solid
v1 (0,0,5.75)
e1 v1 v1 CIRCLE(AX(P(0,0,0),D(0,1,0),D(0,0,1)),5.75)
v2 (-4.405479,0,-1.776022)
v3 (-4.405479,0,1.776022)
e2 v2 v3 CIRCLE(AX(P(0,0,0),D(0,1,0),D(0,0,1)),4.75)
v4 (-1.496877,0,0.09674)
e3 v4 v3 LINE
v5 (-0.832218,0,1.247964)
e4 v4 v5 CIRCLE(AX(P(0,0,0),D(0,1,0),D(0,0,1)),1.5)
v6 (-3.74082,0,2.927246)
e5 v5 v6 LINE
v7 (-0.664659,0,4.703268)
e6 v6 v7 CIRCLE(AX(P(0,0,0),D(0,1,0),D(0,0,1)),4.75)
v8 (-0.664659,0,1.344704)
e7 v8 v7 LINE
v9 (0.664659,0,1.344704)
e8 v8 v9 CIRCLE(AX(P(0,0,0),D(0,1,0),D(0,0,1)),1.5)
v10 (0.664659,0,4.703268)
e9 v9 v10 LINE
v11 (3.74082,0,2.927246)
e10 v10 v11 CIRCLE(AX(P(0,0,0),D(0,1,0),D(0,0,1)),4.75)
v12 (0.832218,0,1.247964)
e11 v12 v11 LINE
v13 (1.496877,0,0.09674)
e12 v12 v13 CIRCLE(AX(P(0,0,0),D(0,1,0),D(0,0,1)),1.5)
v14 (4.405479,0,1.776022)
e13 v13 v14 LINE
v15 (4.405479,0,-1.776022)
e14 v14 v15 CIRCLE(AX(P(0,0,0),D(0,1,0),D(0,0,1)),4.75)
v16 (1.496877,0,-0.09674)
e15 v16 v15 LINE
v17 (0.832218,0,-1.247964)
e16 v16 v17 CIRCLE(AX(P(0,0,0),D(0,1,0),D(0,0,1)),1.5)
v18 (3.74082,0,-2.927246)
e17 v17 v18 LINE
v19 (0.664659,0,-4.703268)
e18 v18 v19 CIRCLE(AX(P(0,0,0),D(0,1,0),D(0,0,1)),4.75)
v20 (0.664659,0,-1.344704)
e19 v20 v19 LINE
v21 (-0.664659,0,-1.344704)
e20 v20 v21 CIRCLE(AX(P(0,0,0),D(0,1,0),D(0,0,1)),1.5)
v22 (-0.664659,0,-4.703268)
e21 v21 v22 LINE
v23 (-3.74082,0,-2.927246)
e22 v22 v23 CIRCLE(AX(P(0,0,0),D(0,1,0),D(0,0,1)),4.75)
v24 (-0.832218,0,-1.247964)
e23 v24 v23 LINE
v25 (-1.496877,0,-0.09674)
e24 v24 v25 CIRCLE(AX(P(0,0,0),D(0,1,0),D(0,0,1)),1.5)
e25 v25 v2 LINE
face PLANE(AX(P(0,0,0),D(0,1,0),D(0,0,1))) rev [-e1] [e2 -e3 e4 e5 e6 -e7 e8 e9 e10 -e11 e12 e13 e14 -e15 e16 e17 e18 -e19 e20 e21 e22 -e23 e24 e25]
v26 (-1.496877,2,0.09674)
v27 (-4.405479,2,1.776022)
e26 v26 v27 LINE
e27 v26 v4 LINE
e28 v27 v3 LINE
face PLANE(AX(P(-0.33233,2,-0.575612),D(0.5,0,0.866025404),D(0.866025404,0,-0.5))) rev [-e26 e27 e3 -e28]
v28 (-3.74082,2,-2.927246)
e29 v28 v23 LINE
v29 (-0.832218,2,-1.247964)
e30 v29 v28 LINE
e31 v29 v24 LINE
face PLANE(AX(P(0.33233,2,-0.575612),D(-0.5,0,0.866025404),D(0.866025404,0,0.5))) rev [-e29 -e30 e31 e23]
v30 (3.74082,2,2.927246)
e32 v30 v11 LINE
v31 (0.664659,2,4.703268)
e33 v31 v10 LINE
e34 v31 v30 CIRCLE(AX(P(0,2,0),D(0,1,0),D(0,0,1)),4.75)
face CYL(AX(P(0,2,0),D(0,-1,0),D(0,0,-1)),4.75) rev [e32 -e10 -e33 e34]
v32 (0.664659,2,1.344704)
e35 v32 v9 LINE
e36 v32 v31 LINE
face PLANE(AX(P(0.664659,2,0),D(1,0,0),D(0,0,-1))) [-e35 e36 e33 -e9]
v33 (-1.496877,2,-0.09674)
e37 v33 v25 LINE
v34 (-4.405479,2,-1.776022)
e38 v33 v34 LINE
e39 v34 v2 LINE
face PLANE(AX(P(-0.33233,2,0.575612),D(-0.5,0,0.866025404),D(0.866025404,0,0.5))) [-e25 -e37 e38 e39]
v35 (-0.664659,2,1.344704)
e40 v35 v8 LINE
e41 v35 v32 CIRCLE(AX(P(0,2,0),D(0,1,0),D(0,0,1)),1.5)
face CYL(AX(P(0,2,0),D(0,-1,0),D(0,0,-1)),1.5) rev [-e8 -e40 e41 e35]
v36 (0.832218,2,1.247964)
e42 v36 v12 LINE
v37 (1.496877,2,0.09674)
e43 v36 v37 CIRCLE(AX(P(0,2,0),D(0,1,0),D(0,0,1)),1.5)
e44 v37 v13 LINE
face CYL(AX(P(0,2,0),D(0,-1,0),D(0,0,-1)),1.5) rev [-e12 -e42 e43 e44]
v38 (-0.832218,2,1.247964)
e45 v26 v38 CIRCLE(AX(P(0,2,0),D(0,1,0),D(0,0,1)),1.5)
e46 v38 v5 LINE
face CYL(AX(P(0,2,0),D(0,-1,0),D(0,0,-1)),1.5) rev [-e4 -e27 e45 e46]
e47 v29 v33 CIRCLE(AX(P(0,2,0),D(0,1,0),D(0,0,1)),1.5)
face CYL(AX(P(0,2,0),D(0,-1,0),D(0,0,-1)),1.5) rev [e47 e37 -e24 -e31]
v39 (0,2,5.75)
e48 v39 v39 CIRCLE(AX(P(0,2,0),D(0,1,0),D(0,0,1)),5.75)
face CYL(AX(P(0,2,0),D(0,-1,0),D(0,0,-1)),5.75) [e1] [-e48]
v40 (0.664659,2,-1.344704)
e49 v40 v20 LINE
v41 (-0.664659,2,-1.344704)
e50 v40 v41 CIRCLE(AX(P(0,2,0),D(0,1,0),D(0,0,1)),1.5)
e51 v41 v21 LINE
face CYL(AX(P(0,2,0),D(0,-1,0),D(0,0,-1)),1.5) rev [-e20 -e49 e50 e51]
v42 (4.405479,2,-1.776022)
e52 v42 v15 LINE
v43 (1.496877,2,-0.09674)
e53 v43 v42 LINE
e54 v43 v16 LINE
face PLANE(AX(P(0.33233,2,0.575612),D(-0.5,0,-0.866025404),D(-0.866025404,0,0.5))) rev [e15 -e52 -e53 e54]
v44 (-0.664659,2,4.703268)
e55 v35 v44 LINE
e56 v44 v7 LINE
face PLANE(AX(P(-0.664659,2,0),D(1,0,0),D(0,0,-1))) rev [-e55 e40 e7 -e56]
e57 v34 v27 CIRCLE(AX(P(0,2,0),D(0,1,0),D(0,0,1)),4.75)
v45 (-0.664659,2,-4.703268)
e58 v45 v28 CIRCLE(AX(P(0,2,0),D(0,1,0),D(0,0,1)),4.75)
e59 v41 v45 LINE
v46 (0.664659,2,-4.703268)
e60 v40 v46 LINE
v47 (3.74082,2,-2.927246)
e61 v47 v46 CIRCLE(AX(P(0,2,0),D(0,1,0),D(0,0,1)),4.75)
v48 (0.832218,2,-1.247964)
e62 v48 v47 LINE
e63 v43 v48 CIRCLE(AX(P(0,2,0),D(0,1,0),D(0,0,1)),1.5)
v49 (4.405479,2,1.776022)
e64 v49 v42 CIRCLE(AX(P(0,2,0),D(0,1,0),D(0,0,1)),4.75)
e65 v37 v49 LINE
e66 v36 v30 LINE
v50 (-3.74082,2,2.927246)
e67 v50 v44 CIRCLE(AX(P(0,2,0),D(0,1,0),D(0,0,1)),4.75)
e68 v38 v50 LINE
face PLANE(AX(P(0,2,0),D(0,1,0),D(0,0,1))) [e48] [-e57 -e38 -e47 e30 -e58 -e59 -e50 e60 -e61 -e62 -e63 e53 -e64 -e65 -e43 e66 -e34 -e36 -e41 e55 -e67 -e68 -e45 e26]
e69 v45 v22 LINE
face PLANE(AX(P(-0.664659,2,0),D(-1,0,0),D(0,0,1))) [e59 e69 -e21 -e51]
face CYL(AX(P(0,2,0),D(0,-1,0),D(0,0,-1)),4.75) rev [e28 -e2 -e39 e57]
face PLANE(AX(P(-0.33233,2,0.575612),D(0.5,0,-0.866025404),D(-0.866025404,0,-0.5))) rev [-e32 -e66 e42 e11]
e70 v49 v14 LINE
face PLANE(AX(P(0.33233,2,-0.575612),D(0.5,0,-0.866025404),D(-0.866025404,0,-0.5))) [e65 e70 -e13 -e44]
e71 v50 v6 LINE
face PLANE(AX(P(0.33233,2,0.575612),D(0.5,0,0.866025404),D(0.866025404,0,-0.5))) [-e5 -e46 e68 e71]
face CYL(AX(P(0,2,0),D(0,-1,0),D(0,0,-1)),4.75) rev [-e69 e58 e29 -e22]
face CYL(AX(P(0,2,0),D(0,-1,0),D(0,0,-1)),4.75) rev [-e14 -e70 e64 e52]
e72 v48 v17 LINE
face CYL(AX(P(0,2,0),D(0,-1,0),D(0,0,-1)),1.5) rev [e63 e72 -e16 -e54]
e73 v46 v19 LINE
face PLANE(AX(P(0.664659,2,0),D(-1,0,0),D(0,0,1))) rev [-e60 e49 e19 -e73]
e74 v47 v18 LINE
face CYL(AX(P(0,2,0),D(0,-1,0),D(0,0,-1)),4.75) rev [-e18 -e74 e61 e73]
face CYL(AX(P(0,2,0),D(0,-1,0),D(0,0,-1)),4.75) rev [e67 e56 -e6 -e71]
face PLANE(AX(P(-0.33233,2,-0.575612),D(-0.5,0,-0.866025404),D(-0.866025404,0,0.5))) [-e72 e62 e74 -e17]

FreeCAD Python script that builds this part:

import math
import FreeCAD as App
import Part
import Sketcher
from FreeCAD import Vector
Q = App.Units.Quantity

doc = App.newDocument("Part")
body = doc.addObject("PartDesign::Body", "Body")

# Sketch on XZ plane
sketch1 = doc.addObject("Sketcher::SketchObject", "Sketch")
body.addObject(sketch1)
sketch1.AttachmentSupport = (doc.XZ_Plane, [""])
sketch1.MapMode = "FlatFace"
sketch1.addGeometry(Part.Circle(Vector(0, 0, 0), Vector(0, 0, 1), 5.75), False)
sketch1.addGeometry(Part.LineSegment(Vector(4.405479, 1.776022, 0), Vector(1.496877, 0.09674, 0)), False)
sketch1.addGeometry(Part.ArcOfCircle(Part.Circle(Vector(0, 0, 0), Vector(0, 0, 1), 1.5), math.radians(3.69777), math.radians(56.30223)), False)
sketch1.addGeometry(Part.LineSegment(Vector(0.832218, 1.247964, 0), Vector(3.74082, 2.927246, 0)), False)
sketch1.addGeometry(Part.ArcOfCircle(Part.Circle(Vector(0, 0, 0), Vector(0, 0, 1), 4.75), math.radians(38.043694), math.radians(81.956306)), False)
sketch1.addGeometry(Part.LineSegment(Vector(0.664659, 4.703268, 0), Vector(0.664659, 1.344704, 0)), False)
sketch1.addGeometry(Part.ArcOfCircle(Part.Circle(Vector(0, 0, 0), Vector(0, 0, 1), 1.5), math.radians(63.69777), math.radians(116.30223)), False)
sketch1.addGeometry(Part.LineSegment(Vector(-0.664659, 1.344704, 0), Vector(-0.664659, 4.703268, 0)), False)
sketch1.addGeometry(Part.ArcOfCircle(Part.Circle(Vector(0, 0, 0), Vector(0, 0, 1), 4.75), math.radians(98.043694), math.radians(141.956306)), False)
sketch1.addGeometry(Part.LineSegment(Vector(-3.74082, 2.927246, 0), Vector(-0.832218, 1.247964, 0)), False)
sketch1.addGeometry(Part.ArcOfCircle(Part.Circle(Vector(0, 0, 0), Vector(0, 0, 1), 1.5), math.radians(123.69777), math.radians(176.30223)), False)
sketch1.addGeometry(Part.LineSegment(Vector(-1.496877, 0.09674, 0), Vector(-4.405479, 1.776022, 0)), False)
sketch1.addGeometry(Part.ArcOfCircle(Part.Circle(Vector(0, 0, 0), Vector(0, 0, 1), 4.75), math.radians(158.043694), math.radians(201.956306)), False)
sketch1.addGeometry(Part.LineSegment(Vector(-4.405479, -1.776022, 0), Vector(-1.496877, -0.09674, 0)), False)
sketch1.addGeometry(Part.ArcOfCircle(Part.Circle(Vector(0, 0, 0), Vector(0, 0, 1), 1.5), math.radians(-176.30223), math.radians(-123.69777)), False)
sketch1.addGeometry(Part.LineSegment(Vector(-0.832218, -1.247964, 0), Vector(-3.74082, -2.927246, 0)), False)
sketch1.addGeometry(Part.ArcOfCircle(Part.Circle(Vector(0, 0, 0), Vector(0, 0, 1), 4.75), math.radians(-141.956306), math.radians(-98.043694)), False)
sketch1.addGeometry(Part.LineSegment(Vector(-0.664659, -4.703268, 0), Vector(-0.664659, -1.344704, 0)), False)
sketch1.addGeometry(Part.ArcOfCircle(Part.Circle(Vector(0, 0, 0), Vector(0, 0, 1), 1.5), math.radians(-116.30223), math.radians(-63.69777)), False)
sketch1.addGeometry(Part.LineSegment(Vector(0.664659, -1.344704, 0), Vector(0.664659, -4.703268, 0)), False)
sketch1.addGeometry(Part.ArcOfCircle(Part.Circle(Vector(0, 0, 0), Vector(0, 0, 1), 4.75), math.radians(-81.956306), math.radians(-38.043694)), False)
sketch1.addGeometry(Part.LineSegment(Vector(3.74082, -2.927246, 0), Vector(0.832218, -1.247964, 0)), False)
sketch1.addGeometry(Part.ArcOfCircle(Part.Circle(Vector(0, 0, 0), Vector(0, 0, 1), 1.5), math.radians(-56.30223), math.radians(-3.69777)), False)
sketch1.addGeometry(Part.LineSegment(Vector(1.496877, -0.09674, 0), Vector(4.405479, -1.776022, 0)), False)
sketch1.addGeometry(Part.ArcOfCircle(Part.Circle(Vector(0, 0, 0), Vector(0, 0, 1), 4.75), math.radians(-21.956306), math.radians(21.956306)), False)
sketch1.addConstraint(Sketcher.Constraint("Coincident", 1, 2, 2, 1))
sketch1.addConstraint(Sketcher.Constraint("Coincident", 2, 2, 3, 1))
sketch1.addConstraint(Sketcher.Constraint("Coincident", 3, 2, 4, 1))
sketch1.addConstraint(Sketcher.Constraint("Coincident", 4, 2, 5, 1))
sketch1.addConstraint(Sketcher.Constraint("Coincident", 5, 2, 6, 1))
sketch1.addConstraint(Sketcher.Constraint("Coincident", 6, 2, 7, 1))
sketch1.addConstraint(Sketcher.Constraint("Coincident", 7, 2, 8, 1))
sketch1.addConstraint(Sketcher.Constraint("Coincident", 8, 2, 9, 1))
sketch1.addConstraint(Sketcher.Constraint("Coincident", 9, 2, 10, 1))
sketch1.addConstraint(Sketcher.Constraint("Coincident", 10, 2, 11, 1))
sketch1.addConstraint(Sketcher.Constraint("Coincident", 11, 2, 12, 1))
sketch1.addConstraint(Sketcher.Constraint("Coincident", 12, 2, 13, 1))
sketch1.addConstraint(Sketcher.Constraint("Coincident", 13, 2, 14, 1))
sketch1.addConstraint(Sketcher.Constraint("Coincident", 14, 2, 15, 1))
sketch1.addConstraint(Sketcher.Constraint("Coincident", 15, 2, 16, 1))
sketch1.addConstraint(Sketcher.Constraint("Coincident", 16, 2, 17, 1))
sketch1.addConstraint(Sketcher.Constraint("Coincident", 17, 2, 18, 1))
sketch1.addConstraint(Sketcher.Constraint("Coincident", 18, 2, 19, 1))
sketch1.addConstraint(Sketcher.Constraint("Coincident", 19, 2, 20, 1))
sketch1.addConstraint(Sketcher.Constraint("Coincident", 20, 2, 21, 1))
sketch1.addConstraint(Sketcher.Constraint("Coincident", 21, 2, 22, 1))
sketch1.addConstraint(Sketcher.Constraint("Coincident", 22, 2, 23, 1))
sketch1.addConstraint(Sketcher.Constraint("Coincident", 23, 2, 24, 1))
sketch1.addConstraint(Sketcher.Constraint("Coincident", 24, 2, 1, 1))
sketch1.addConstraint(Sketcher.Constraint("Vertical", 5))
sketch1.addConstraint(Sketcher.Constraint("Vertical", 7))
sketch1.addConstraint(Sketcher.Constraint("Vertical", 17))
sketch1.addConstraint(Sketcher.Constraint("Vertical", 19))
sketch1.addConstraint(Sketcher.Constraint("Coincident", 0, 3, -1, 1))
sketch1.addConstraint(Sketcher.Constraint("Coincident", 2, 3, -1, 1))
sketch1.addConstraint(Sketcher.Constraint("Coincident", 4, 3, -1, 1))
sketch1.addConstraint(Sketcher.Constraint("Coincident", 6, 3, -1, 1))
sketch1.addConstraint(Sketcher.Constraint("Coincident", 8, 3, -1, 1))
sketch1.addConstraint(Sketcher.Constraint("Coincident", 10, 3, -1, 1))
sketch1.addConstraint(Sketcher.Constraint("Coincident", 12, 3, -1, 1))
sketch1.addConstraint(Sketcher.Constraint("Coincident", 14, 3, -1, 1))
sketch1.addConstraint(Sketcher.Constraint("Coincident", 16, 3, -1, 1))
sketch1.addConstraint(Sketcher.Constraint("Coincident", 18, 3, -1, 1))
sketch1.addConstraint(Sketcher.Constraint("Coincident", 20, 3, -1, 1))
sketch1.addConstraint(Sketcher.Constraint("Coincident", 22, 3, -1, 1))
sketch1.addConstraint(Sketcher.Constraint("Coincident", 24, 3, -1, 1))
sketch1.addConstraint(Sketcher.Constraint("Equal", 2, 6))
sketch1.addConstraint(Sketcher.Constraint("Equal", 4, 8))
sketch1.addConstraint(Sketcher.Constraint("Equal", 6, 10))
sketch1.addConstraint(Sketcher.Constraint("Equal", 8, 12))
sketch1.addConstraint(Sketcher.Constraint("Equal", 10, 14))
sketch1.addConstraint(Sketcher.Constraint("Equal", 12, 16))
sketch1.addConstraint(Sketcher.Constraint("Equal", 14, 18))
sketch1.addConstraint(Sketcher.Constraint("Equal", 16, 20))
sketch1.addConstraint(Sketcher.Constraint("Equal", 18, 22))
sketch1.addConstraint(Sketcher.Constraint("Equal", 20, 24))
sketch1.addConstraint(Sketcher.Constraint("Parallel", 1, 3))
sketch1.addConstraint(Sketcher.Constraint("Parallel", 9, 11))
sketch1.addConstraint(Sketcher.Constraint("Parallel", 3, 13))
sketch1.addConstraint(Sketcher.Constraint("Parallel", 13, 15))
sketch1.addConstraint(Sketcher.Constraint("Parallel", 11, 21))
sketch1.addConstraint(Sketcher.Constraint("Parallel", 21, 23))
sketch1.addConstraint(Sketcher.Constraint("Horizontal", 5, 2, 6, 2))
sketch1.addConstraint(Sketcher.Constraint("Horizontal", 3, 2, 8, 2))
sketch1.addConstraint(Sketcher.Constraint("Horizontal", 2, 2, 9, 2))
sketch1.addConstraint(Sketcher.Constraint("Horizontal", 1, 2, 10, 2))
sketch1.addConstraint(Sketcher.Constraint("Horizontal", 17, 2, 18, 2))
sketch1.addConstraint(Sketcher.Constraint("Horizontal", 15, 2, 20, 2))
sketch1.addConstraint(Sketcher.Constraint("Horizontal", 13, 2, 22, 2))
sketch1.addConstraint(Sketcher.Constraint("Vertical", 11, 2, 12, 2))
sketch1.addConstraint(Sketcher.Constraint("Vertical", 9, 2, 14, 2))
sketch1.addConstraint(Sketcher.Constraint("Vertical", 7, 2, 16, 2))
sketch1.addConstraint(Sketcher.Constraint("Equal", 1, 3))
sketch1.addConstraint(Sketcher.Constraint("Diameter", 0, 11.5))
sketch1.addConstraint(Sketcher.Constraint("Radius", 2, 1.5))
sketch1.addConstraint(Sketcher.Constraint("Angle", 1, Q("-150 deg")))
sketch1.addConstraint(Sketcher.Constraint("Radius", 4, 4.75))
sketch1.addConstraint(Sketcher.Constraint("DistanceX", 2, 2, 3, 2, 2.908602))
sketch1.addConstraint(Sketcher.Constraint("DistanceY", 5, 2, 5, 1, 3.358564))
pad1 = doc.addObject("PartDesign::Pad", "Pad")
body.addObject(pad1)
pad1.Profile = sketch1
pad1.Length = 2
pad1.Reversed = True

doc.recompute()
